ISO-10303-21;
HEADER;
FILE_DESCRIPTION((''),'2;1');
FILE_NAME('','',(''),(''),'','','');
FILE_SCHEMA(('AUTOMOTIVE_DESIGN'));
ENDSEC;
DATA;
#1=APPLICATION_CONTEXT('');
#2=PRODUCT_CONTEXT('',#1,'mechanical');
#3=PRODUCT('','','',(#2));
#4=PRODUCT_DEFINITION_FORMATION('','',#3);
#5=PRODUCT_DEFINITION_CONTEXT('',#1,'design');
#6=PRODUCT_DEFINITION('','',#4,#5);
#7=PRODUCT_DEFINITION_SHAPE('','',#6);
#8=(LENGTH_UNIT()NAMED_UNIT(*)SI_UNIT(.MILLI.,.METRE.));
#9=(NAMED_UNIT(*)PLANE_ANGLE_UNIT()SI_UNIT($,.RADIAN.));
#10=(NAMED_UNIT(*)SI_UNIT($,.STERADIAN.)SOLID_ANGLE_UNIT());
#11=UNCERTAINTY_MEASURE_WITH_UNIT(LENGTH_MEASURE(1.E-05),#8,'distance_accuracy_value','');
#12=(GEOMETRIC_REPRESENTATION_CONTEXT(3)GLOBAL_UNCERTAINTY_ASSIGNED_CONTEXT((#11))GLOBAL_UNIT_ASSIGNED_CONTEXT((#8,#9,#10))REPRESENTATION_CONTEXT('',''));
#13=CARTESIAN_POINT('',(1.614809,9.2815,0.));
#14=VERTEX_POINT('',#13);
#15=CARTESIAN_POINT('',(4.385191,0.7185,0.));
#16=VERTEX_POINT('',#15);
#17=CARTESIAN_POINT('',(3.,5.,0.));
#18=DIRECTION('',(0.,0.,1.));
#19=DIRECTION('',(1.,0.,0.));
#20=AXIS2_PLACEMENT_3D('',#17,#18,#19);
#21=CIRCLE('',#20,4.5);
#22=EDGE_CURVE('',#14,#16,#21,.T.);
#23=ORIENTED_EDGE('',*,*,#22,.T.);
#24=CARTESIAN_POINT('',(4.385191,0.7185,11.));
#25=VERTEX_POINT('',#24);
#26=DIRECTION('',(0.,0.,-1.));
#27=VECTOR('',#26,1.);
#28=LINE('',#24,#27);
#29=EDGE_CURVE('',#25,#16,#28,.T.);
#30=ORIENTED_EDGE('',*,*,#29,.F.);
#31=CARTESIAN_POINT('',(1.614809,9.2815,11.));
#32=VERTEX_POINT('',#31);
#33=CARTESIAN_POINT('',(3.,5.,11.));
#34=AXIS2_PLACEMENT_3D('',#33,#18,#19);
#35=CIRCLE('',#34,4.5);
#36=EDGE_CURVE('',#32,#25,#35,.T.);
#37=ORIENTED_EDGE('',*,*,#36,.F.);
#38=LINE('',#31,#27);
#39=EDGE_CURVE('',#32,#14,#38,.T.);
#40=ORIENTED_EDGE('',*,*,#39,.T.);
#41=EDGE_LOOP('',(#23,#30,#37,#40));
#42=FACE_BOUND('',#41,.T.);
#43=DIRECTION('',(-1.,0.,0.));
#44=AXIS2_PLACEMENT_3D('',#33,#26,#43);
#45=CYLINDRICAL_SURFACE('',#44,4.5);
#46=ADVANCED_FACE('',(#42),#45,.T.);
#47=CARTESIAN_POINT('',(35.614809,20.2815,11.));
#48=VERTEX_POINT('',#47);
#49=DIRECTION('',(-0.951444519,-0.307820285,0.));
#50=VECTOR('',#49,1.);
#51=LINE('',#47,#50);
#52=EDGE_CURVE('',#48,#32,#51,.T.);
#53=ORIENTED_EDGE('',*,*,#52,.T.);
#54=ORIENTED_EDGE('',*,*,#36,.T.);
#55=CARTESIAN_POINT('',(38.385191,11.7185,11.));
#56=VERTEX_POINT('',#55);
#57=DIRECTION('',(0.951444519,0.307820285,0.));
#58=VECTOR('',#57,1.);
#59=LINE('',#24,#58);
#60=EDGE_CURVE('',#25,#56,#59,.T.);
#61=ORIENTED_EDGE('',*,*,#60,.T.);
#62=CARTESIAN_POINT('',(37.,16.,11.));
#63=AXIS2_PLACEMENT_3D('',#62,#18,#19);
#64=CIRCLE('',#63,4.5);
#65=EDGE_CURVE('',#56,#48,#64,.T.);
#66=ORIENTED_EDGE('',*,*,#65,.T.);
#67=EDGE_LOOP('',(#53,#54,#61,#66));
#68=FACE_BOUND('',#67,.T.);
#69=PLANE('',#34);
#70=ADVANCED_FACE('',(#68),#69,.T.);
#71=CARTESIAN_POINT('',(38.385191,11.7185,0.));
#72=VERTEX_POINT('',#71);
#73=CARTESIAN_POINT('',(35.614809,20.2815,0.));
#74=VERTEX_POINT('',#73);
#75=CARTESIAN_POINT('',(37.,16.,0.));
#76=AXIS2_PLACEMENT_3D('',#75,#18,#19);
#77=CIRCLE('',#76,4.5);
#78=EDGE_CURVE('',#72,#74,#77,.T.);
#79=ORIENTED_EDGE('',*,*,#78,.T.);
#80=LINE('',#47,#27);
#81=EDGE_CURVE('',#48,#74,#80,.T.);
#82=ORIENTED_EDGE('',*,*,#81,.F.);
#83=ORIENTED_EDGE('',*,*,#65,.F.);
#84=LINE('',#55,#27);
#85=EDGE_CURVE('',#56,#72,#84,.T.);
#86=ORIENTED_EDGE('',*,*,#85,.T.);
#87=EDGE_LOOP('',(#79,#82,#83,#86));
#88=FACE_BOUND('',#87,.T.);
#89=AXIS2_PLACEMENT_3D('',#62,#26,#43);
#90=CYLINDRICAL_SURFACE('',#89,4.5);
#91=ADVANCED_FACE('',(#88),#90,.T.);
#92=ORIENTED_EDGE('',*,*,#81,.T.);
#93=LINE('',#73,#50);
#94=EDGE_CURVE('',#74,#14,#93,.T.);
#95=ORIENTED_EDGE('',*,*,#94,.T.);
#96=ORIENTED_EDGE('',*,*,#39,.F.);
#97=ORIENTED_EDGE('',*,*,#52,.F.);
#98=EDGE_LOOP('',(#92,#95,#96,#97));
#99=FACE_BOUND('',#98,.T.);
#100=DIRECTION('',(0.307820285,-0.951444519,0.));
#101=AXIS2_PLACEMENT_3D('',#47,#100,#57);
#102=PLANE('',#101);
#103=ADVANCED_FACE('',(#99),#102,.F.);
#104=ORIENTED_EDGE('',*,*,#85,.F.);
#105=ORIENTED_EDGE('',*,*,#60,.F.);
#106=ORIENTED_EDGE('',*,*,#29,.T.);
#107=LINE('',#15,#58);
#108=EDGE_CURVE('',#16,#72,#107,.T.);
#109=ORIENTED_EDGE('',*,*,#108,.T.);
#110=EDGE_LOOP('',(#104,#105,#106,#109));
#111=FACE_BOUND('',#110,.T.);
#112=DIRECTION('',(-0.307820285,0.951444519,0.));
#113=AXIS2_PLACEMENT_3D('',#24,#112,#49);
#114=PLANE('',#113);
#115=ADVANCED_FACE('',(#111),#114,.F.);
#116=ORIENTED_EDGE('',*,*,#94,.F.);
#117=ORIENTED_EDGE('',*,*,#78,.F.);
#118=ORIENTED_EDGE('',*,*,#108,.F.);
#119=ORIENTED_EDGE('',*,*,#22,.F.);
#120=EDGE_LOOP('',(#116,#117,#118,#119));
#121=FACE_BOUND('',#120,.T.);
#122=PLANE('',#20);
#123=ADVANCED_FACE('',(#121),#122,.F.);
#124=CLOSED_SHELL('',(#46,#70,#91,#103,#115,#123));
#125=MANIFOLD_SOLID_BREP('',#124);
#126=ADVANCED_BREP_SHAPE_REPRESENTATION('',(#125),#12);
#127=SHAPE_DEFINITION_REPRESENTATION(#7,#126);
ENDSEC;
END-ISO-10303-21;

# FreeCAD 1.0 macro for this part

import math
import FreeCAD as App
import Part
import Sketcher

V = App.Vector
Q = App.Units.Quantity

doc = App.newDocument("Part")
params = doc.addObject("Spreadsheet::Sheet", "Params")
for row, (alias, value) in enumerate([
    ("sketch1_radius", "4.5 mm"),
    ("pad1_length", "11 mm"),
], start=1):
    params.set(f"A{row}", alias)
    params.set(f"B{row}", "=" + value)
    params.setAlias(f"B{row}", alias)

body = doc.addObject("PartDesign::Body", "Body")

# Sketch on XY plane
sketch1 = body.newObject("Sketcher::SketchObject", "Sketch")
sketch1.AttachmentSupport = (doc.getObject("XY_Plane"), [""])
sketch1.MapMode = "FlatFace"
sketch1.addGeometry([
    Part.LineSegment(V(4.385191, 0.7185, 0), V(38.385191, 11.7185, 0)),
    Part.ArcOfCircle(Part.Circle(V(37, 16, 0), V(0, 0, 1), 4.5), math.radians(-72.07208), math.radians(107.92792)),
    Part.LineSegment(V(35.614809, 20.2815, 0), V(1.614809, 9.2815, 0)),
    Part.ArcOfCircle(Part.Circle(V(3, 5, 0), V(0, 0, 1), 4.5), math.radians(107.92792), math.radians(287.92792)),
], False)
sketch1.addConstraint([
    Sketcher.Constraint("Tangent", 0, 2, 1, 1),
    Sketcher.Constraint("Tangent", 1, 2, 2, 1),
    Sketcher.Constraint("Tangent", 2, 2, 3, 1),
    Sketcher.Constraint("Tangent", 3, 2, 0, 1),
    Sketcher.Constraint("Equal", 1, 3),
    Sketcher.Constraint("Radius", 1, Q("4.5 mm")),
    Sketcher.Constraint("DistanceX", -1, 1, 1, 3, Q("37 mm")),
    Sketcher.Constraint("DistanceY", -1, 1, 1, 3, Q("16 mm")),
    Sketcher.Constraint("DistanceX", -1, 1, 3, 3, Q("3 mm")),
    Sketcher.Constraint("DistanceY", -1, 1, 3, 3, Q("5 mm")),
])
sketch1.setExpression("Constraints[5]", "Params.sketch1_radius")
pad1 = body.newObject("PartDesign::Pad", "Pad")
pad1.Profile = sketch1
pad1.setExpression("Length", "Params.pad1_length")

doc.recompute()
